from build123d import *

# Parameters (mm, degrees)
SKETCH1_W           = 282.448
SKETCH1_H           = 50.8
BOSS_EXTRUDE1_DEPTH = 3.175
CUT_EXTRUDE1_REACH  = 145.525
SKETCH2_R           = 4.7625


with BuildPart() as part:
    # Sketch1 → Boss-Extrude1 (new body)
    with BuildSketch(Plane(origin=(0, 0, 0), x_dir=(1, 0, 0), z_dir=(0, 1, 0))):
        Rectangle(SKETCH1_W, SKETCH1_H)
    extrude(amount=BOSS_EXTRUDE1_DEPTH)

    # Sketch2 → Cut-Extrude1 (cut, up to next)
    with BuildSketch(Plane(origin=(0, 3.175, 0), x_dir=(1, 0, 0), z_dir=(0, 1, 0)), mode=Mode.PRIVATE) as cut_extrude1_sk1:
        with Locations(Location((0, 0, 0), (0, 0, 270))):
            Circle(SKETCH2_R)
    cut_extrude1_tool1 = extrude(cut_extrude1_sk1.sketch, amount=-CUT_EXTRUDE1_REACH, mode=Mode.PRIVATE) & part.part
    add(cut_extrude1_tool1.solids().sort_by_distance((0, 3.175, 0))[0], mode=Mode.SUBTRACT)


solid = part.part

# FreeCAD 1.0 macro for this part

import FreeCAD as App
import Part
import Sketcher
from FreeCAD import Vector
Q = App.Units.Quantity

doc = App.newDocument("Part")
body = doc.addObject("PartDesign::Body", "Body")

sketch1 = body.newObject("Sketcher::SketchObject", "Sketch")
sketch1.AttachmentSupport = (doc.getObject("XZ_Plane"), [""])
sketch1.MapMode = "FlatFace"
sketch1.addGeometry([
    Part.LineSegment(Vector(-141, -25, 0), Vector(-141, 25, 0)),
    Part.LineSegment(Vector(-141, 25, 0), Vector(141, 25, 0)),
    Part.LineSegment(Vector(141, 25, 0), Vector(141, -25, 0)),
    Part.LineSegment(Vector(141, -25, 0), Vector(-141, -25, 0)),
], False)
sketch1.addConstraint([
    Sketcher.Constraint("Coincident", 0, 2, 1, 1),
    Sketcher.Constraint("Coincident", 1, 2, 2, 1),
    Sketcher.Constraint("Coincident", 2, 2, 3, 1),
    Sketcher.Constraint("Coincident", 3, 2, 0, 1),
    Sketcher.Constraint("Vertical", 0),
    Sketcher.Constraint("Horizontal", 1),
    Sketcher.Constraint("Vertical", 2),
    Sketcher.Constraint("Horizontal", 3),
    Sketcher.Constraint("Symmetric", 0, 2, 2, 2, -1, 1),
    Sketcher.Constraint("DistanceY", 0, 1, 0, 2, Q("2 in")),
    Sketcher.Constraint("DistanceX", 1, 1, 1, 2, Q("11.12 in")),
])
pad1 = body.newObject("PartDesign::Pad", "Pad")
pad1.Profile = sketch1
pad1.Length = Q("0.125 in")
pad1.Reversed = True

sketch2 = body.newObject("Sketcher::SketchObject", "Sketch001")
sketch2.AttachmentSupport = (doc.getObject("XZ_Plane"), [""])
sketch2.MapMode = "FlatFace"
sketch2.AttachmentOffset = App.Placement(Vector(0, 0, -0.125 * 25.4), App.Rotation())
sketch2.addGeometry(Part.Circle(Vector(0, 0, 0), Vector(0, 0, 1), 4.8), False)
sketch2.addConstraint([
    Sketcher.Constraint("Coincident", 0, 3, -1, 1),
    Sketcher.Constraint("Diameter", 0, Q("0.375 in")),
])
pocket1 = body.newObject("PartDesign::Pocket", "Pocket")
pocket1.Profile = sketch2
pocket1.Type = "UpToFirst"
pocket1.Reversed = True

doc.recompute()
